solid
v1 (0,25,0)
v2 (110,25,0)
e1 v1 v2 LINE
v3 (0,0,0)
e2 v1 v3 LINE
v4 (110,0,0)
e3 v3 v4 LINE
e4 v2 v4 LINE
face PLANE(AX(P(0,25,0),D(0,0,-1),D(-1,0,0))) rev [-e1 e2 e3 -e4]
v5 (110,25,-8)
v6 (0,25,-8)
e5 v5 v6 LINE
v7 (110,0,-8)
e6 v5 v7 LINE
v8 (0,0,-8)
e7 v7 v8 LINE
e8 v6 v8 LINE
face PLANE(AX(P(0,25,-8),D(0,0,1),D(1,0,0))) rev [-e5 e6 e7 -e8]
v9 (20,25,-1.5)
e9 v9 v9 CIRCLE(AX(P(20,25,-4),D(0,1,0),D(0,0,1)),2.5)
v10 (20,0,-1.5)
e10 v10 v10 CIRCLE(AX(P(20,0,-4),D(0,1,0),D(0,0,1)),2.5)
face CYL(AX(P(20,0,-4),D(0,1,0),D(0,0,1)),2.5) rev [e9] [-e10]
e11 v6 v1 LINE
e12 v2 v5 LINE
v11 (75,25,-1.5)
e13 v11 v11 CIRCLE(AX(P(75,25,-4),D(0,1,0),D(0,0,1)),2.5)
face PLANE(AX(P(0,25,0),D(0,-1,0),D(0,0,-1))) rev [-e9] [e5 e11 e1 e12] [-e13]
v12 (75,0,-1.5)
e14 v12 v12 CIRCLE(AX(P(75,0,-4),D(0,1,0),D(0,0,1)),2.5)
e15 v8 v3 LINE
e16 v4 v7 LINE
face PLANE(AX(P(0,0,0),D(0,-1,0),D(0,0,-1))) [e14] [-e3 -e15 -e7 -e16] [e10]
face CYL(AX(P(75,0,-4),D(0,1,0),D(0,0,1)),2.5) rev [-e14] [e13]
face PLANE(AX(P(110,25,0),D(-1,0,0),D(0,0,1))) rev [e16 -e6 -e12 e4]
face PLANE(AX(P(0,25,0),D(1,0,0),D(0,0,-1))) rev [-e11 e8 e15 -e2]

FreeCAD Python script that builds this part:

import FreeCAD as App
import Part
import Sketcher

V = App.Vector


def add_polygon(sketch, points):
    """Adds a closed chain of lines whose ends are joined by coincident constraints."""
    first, n = sketch.GeometryCount, len(points)
    for a, b in zip(points, points[1:] + points[:1]):
        sketch.addGeometry(Part.LineSegment(App.Vector(*a, 0), App.Vector(*b, 0)), False)
    for i in range(n):
        sketch.addConstraint(Sketcher.Constraint("Coincident", first + i, 2, first + (i + 1) % n, 1))

doc = App.newDocument("Part")
params = doc.addObject("Spreadsheet::Sheet", "Params")
for row, (alias, value) in enumerate([
    ("sketch1_width", "110 mm"),
    ("sketch1_height", "8 mm"),
    ("pad1_length", "25 mm"),
    ("sketch2_diameter", "5 mm"),
], start=1):
    params.set(f"A{row}", alias)
    params.set(f"B{row}", "=" + value)
    params.setAlias(f"B{row}", alias)

body = doc.addObject("PartDesign::Body", "Body")

# Sketch on XZ plane
sketch1 = body.newObject("Sketcher::SketchObject", "Sketch")
sketch1.AttachmentSupport = (doc.getObject("XZ_Plane"), [""])
sketch1.MapMode = "FlatFace"
add_polygon(sketch1, [(0, -8), (0, 0), (110, 0), (110, -8)])  # lines 0-3
sketch1.addConstraint([
    Sketcher.Constraint("Vertical", 0),
    Sketcher.Constraint("Horizontal", 1),
    Sketcher.Constraint("Vertical", 2),
    Sketcher.Constraint("Horizontal", 3),
    Sketcher.Constraint("Coincident", 0, 2, -1, 1),
    Sketcher.Constraint("DistanceX", 1, 1, 1, 2, 110.0),
    Sketcher.Constraint("DistanceY", 0, 1, 0, 2, 8.0),
])
sketch1.setExpression("Constraints[9]", "Params.sketch1_width")
sketch1.setExpression("Constraints[10]", "Params.sketch1_height")
pad1 = body.newObject("PartDesign::Pad", "Pad")
pad1.Profile = sketch1
pad1.setExpression("Length", "Params.pad1_length")
pad1.Reversed = True

# Sketch on XZ plane
sketch2 = body.newObject("Sketcher::SketchObject", "Sketch001")
sketch2.AttachmentSupport = (doc.getObject("XZ_Plane"), [""])
sketch2.MapMode = "FlatFace"
sketch2.AttachmentOffset = App.Placement(V(0, 0, -25), App.Rotation())
sketch2.addGeometry([
    Part.Circle(V(20, -4, 0), V(0, 0, 1), 2.5),
    Part.Circle(V(75, -4, 0), V(0, 0, 1), 2.5),
], False)
sketch2.addConstraint([
    Sketcher.Constraint("Equal", 0, 1),
    Sketcher.Constraint("Horizontal", 0, 3, 1, 3),
    Sketcher.Constraint("Diameter", 0, 5.0),
    Sketcher.Constraint("DistanceX", -1, 1, 0, 3, 20.0),
    Sketcher.Constraint("DistanceY", 0, 3, -1, 1, 4.0),
    Sketcher.Constraint("DistanceX", -1, 1, 1, 3, 75.0),
])
sketch2.setExpression("Constraints[2]", "Params.sketch2_diameter")
pocket1 = body.newObject("PartDesign::Pocket", "Pocket")
pocket1.Profile = sketch2
pocket1.Type = "ThroughAll"
pocket1.Reversed = True

doc.recompute()
